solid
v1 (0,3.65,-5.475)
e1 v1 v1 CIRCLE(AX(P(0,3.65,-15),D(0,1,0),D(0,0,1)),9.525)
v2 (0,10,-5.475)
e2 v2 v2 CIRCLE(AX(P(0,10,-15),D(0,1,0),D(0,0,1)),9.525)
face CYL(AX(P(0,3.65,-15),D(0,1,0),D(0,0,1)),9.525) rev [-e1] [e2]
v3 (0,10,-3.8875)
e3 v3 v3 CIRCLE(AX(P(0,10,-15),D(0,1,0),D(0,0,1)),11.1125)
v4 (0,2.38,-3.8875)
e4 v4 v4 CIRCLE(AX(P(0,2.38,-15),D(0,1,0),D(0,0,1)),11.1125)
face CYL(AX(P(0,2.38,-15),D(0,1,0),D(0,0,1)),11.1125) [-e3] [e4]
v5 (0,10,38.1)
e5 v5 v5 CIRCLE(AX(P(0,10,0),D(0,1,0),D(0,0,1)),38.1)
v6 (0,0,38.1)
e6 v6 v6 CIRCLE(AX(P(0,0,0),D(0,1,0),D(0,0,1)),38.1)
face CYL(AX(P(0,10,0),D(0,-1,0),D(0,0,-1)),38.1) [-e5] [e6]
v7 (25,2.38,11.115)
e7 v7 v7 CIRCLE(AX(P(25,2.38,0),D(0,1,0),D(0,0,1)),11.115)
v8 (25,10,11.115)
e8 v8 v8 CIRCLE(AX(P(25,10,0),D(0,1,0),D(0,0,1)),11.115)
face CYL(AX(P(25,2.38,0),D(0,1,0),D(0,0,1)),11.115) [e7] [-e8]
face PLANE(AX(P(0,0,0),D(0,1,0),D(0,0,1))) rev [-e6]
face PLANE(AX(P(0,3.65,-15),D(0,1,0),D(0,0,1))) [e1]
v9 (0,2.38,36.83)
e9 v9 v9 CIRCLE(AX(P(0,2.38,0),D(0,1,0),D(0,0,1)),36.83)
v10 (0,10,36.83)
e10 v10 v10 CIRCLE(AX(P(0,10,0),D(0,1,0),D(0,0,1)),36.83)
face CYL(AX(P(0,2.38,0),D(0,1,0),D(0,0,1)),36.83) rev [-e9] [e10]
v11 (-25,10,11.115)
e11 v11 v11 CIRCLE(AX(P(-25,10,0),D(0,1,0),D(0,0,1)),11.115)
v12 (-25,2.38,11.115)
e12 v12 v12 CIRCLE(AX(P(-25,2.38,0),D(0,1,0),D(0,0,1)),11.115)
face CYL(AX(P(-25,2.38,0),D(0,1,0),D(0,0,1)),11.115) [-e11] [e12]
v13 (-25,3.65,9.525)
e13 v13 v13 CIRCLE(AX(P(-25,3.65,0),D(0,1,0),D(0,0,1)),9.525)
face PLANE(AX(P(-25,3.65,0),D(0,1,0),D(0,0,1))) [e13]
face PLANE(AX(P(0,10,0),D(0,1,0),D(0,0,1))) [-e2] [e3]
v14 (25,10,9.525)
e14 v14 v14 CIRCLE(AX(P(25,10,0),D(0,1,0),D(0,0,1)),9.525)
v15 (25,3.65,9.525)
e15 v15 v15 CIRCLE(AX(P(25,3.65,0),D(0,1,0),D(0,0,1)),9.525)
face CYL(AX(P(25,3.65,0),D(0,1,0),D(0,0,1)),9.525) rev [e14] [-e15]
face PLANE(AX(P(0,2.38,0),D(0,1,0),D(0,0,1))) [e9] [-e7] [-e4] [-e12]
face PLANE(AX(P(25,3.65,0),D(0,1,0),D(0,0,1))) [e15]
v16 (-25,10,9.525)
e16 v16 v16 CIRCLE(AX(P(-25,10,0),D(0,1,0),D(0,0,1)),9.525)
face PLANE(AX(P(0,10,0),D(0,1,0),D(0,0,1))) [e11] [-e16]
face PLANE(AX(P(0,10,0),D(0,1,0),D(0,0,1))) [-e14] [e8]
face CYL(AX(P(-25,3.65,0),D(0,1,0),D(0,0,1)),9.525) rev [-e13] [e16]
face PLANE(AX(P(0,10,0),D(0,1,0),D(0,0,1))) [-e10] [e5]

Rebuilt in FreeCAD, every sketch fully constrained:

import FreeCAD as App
import Part
import Sketcher
from FreeCAD import Vector
Q = App.Units.Quantity

doc = App.newDocument("Part")
body = doc.addObject("PartDesign::Body", "Body")

sketch1 = body.newObject("Sketcher::SketchObject", "Sketch")
sketch1.AttachmentSupport = (doc.getObject("XZ_Plane"), [""])
sketch1.MapMode = "FlatFace"
sketch1.addGeometry(Part.Circle(Vector(0, 0, 0), Vector(0, 0, 1), 38), False)
sketch1.addConstraint(Sketcher.Constraint("Coincident", 0, 3, -1, 1))
sketch1.addConstraint(Sketcher.Constraint("Diameter", 0, Q("3 in")))
pad1 = body.newObject("PartDesign::Pad", "Pad")
pad1.Profile = sketch1
pad1.Length = 10
pad1.Reversed = True

sketch2 = body.newObject("Sketcher::SketchObject", "Sketch001")
sketch2.AttachmentSupport = (doc.getObject("XZ_Plane"), [""])
sketch2.MapMode = "FlatFace"
sketch2.AttachmentOffset = App.Placement(Vector(0, 0, -10), App.Rotation())
sketch2.addGeometry(Part.Circle(Vector(25, 0, 0), Vector(0, 0, 1), 10), False)
sketch2.addGeometry(Part.Circle(Vector(-25, 0, 0), Vector(0, 0, 1), 10), False)
sketch2.addGeometry(Part.Circle(Vector(0, -15, 0), Vector(0, 0, 1), 10), False)
sketch2.addConstraint(Sketcher.Constraint("Equal", 0, 1))
sketch2.addConstraint(Sketcher.Constraint("Equal", 1, 2))
sketch2.addConstraint(Sketcher.Constraint("Symmetric", 0, 3, 1, 3, -1, 1))
sketch2.addConstraint(Sketcher.Constraint("PointOnObject", 0, 3, -1))
sketch2.addConstraint(Sketcher.Constraint("PointOnObject", 2, 3, -2))
sketch2.addConstraint(Sketcher.Constraint("Diameter", 0, Q("0.75 in")))
sketch2.addConstraint(Sketcher.Constraint("DistanceX", -1, 1, 0, 3, Q("25 mm")))
sketch2.addConstraint(Sketcher.Constraint("DistanceY", 2, 3, -1, 1, Q("15 mm")))
pocket1 = body.newObject("PartDesign::Pocket", "Pocket")
pocket1.Profile = sketch2
pocket1.Length = Q("0.25 in")
pocket1.Reversed = True

sketch3 = body.newObject("Sketcher::SketchObject", "Sketch002")
sketch3.AttachmentSupport = (doc.getObject("XZ_Plane"), [""])
sketch3.MapMode = "FlatFace"
sketch3.AttachmentOffset = App.Placement(Vector(0, 0, -10), App.Rotation())
sketch3.addGeometry(Part.Circle(Vector(0, 0, 0), Vector(0, 0, 1), 37), False)
sketch3.addGeometry(Part.Circle(Vector(-25, 0, 0), Vector(0, 0, 1), 11), False)
sketch3.addGeometry(Part.Circle(Vector(25, 0, 0), Vector(0, 0, 1), 11), False)
sketch3.addGeometry(Part.Circle(Vector(0, -15, 0), Vector(0, 0, 1), 11), False)
sketch3.addConstraint(Sketcher.Constraint("Coincident", 0, 3, -1, 1))
sketch3.addConstraint(Sketcher.Constraint("Equal", 1, 2))
sketch3.addConstraint(Sketcher.Constraint("Symmetric", 1, 3, 2, 3, -1, 1))
sketch3.addConstraint(Sketcher.Constraint("PointOnObject", 1, 3, -1))
sketch3.addConstraint(Sketcher.Constraint("PointOnObject", 3, 3, -2))
sketch3.addConstraint(Sketcher.Constraint("Diameter", 0, Q("2.9 in")))
sketch3.addConstraint(Sketcher.Constraint("Diameter", 3, Q("0.875 in")))
sketch3.addConstraint(Sketcher.Constraint("Diameter", 1, Q("22.23 mm")))
sketch3.addConstraint(Sketcher.Constraint("DistanceX", 1, 3, -1, 1, Q("25 mm")))
sketch3.addConstraint(Sketcher.Constraint("DistanceY", 3, 3, -1, 1, Q("15 mm")))
pocket2 = body.newObject("PartDesign::Pocket", "Pocket001")
pocket2.Profile = sketch3
pocket2.Length = Q("0.3 in")
pocket2.Reversed = True

doc.recompute()
